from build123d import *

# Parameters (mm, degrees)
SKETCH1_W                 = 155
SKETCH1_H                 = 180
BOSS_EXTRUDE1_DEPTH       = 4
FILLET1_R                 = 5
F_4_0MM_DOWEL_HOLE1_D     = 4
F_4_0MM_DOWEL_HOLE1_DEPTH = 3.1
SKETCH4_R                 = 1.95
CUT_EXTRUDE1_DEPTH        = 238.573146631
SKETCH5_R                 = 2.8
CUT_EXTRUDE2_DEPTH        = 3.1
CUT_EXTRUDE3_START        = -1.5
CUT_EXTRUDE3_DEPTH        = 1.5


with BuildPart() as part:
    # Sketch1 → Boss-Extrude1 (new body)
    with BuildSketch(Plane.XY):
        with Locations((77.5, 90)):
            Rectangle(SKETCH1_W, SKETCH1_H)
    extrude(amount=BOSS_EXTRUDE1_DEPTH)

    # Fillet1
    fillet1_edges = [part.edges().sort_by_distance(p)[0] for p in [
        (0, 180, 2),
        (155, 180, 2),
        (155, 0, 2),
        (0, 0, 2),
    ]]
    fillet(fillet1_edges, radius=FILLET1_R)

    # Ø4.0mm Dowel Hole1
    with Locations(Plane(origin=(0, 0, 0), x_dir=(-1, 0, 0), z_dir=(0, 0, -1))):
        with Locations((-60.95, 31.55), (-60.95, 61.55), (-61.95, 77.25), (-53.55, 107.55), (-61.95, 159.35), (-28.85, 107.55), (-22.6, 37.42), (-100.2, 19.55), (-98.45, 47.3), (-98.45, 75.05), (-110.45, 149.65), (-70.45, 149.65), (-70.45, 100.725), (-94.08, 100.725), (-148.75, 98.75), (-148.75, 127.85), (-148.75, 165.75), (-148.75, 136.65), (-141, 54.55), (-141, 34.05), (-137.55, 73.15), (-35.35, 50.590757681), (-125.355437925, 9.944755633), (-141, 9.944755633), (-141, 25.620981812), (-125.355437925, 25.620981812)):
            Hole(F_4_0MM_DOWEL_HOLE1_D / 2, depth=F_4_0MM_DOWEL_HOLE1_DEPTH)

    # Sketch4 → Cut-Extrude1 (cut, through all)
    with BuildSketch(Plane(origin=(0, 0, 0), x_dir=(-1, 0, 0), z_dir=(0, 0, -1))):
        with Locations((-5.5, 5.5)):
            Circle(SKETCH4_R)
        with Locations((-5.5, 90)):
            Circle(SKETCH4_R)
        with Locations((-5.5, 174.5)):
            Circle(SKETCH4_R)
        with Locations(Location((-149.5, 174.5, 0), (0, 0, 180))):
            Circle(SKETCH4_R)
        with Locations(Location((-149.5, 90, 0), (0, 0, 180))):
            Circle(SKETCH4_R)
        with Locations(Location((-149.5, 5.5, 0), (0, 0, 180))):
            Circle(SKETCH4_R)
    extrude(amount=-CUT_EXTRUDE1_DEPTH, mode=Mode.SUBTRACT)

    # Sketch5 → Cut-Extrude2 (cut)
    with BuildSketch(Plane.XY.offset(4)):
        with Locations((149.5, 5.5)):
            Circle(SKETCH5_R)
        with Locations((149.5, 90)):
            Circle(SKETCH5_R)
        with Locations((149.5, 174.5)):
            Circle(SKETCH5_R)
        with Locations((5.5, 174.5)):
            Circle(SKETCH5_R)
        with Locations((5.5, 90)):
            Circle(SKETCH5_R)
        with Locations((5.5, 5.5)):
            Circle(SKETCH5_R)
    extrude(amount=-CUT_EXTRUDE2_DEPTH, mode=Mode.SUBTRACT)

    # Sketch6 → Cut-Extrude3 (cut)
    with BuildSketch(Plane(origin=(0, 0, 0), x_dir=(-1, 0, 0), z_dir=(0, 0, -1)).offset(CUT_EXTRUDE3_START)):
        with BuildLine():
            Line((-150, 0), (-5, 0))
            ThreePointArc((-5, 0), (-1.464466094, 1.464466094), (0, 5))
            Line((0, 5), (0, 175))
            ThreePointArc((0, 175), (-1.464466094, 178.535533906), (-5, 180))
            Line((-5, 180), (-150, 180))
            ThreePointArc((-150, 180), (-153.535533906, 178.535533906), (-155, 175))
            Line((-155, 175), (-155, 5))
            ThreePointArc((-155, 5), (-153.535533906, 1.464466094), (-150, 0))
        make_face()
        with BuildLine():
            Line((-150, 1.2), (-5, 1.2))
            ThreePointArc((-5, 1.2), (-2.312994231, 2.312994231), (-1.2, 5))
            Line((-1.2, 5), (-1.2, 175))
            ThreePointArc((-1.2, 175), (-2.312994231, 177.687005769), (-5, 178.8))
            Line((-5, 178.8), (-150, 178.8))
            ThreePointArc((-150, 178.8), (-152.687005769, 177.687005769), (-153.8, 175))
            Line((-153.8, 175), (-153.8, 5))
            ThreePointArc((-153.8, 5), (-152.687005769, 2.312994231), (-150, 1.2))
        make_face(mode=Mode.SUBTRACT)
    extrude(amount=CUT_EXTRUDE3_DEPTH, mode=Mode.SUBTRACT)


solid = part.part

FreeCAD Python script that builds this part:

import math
import FreeCAD as App
import Part
import Sketcher
from FreeCAD import Vector
Q = App.Units.Quantity


def edges_at(feature, points):
    """Names of the edges that pass closest to the given points."""
    edges = feature.Shape.Edges
    near = lambda p: min(range(len(edges)), key=lambda i: edges[i].distToShape(Part.Vertex(*p))[0])
    return sorted({f"Edge{near(p) + 1}" for p in points})

doc = App.newDocument("Part")
body = doc.addObject("PartDesign::Body", "Body")

# Sketch on XY plane
sketch1 = body.newObject("Sketcher::SketchObject", "Sketch")
sketch1.AttachmentSupport = (doc.getObject("XY_Plane"), [""])
sketch1.MapMode = "FlatFace"
sketch1.addGeometry([
    Part.LineSegment(Vector(0, 180, 0), Vector(0, 0, 0)),
    Part.LineSegment(Vector(0, 0, 0), Vector(155, 0, 0)),
    Part.LineSegment(Vector(155, 0, 0), Vector(155, 180, 0)),
    Part.LineSegment(Vector(155, 180, 0), Vector(0, 180, 0)),
], False)
sketch1.addConstraint([
    Sketcher.Constraint("Coincident", 0, 2, 1, 1),
    Sketcher.Constraint("Coincident", 1, 2, 2, 1),
    Sketcher.Constraint("Coincident", 2, 2, 3, 1),
    Sketcher.Constraint("Coincident", 3, 2, 0, 1),
    Sketcher.Constraint("Vertical", 0),
    Sketcher.Constraint("Horizontal", 1),
    Sketcher.Constraint("Vertical", 2),
    Sketcher.Constraint("Horizontal", 3),
    Sketcher.Constraint("Coincident", 0, 2, -1, 1),
    Sketcher.Constraint("DistanceX", 1, 1, 1, 2, Q("155 mm")),
    Sketcher.Constraint("DistanceY", 0, 2, 0, 1, Q("180 mm")),
])
pad1 = body.newObject("PartDesign::Pad", "Pad")
pad1.Profile = sketch1
pad1.Length = 4
doc.recompute()

fillet = body.newObject("PartDesign::Fillet", "Fillet")
fillet.Base = (pad1, edges_at(pad1, [
    (0, 180, 2),
    (155, 180, 2),
    (155, 0, 2),
    (0, 0, 2),
]))
fillet.Radius = 5

# Sketch on XY plane
sketch2 = body.newObject("Sketcher::SketchObject", "Sketch001")
sketch2.AttachmentSupport = (doc.getObject("XY_Plane"), [""])
sketch2.MapMode = "FlatFace"
sketch2.addGeometry([
    Part.Circle(Vector(61, 31.6, 0), Vector(0, 0, 1), 2),  # 0
    Part.Circle(Vector(61, 61.5, 0), Vector(0, 0, 1), 2),  # 1
    Part.Circle(Vector(62, 77.2, 0), Vector(0, 0, 1), 2),  # 2
    Part.Circle(Vector(53.5, 107.5, 0), Vector(0, 0, 1), 2),  # 3
    Part.Circle(Vector(62, 159.3, 0), Vector(0, 0, 1), 2),  # 4
    Part.Circle(Vector(28.9, 107.5, 0), Vector(0, 0, 1), 2),  # 5
    Part.Circle(Vector(22.6, 37.4, 0), Vector(0, 0, 1), 2),  # 6
    Part.Circle(Vector(100.2, 19.6, 0), Vector(0, 0, 1), 2),  # 7
    Part.Circle(Vector(98.5, 47.3, 0), Vector(0, 0, 1), 2),  # 8
    Part.Circle(Vector(98.5, 75, 0), Vector(0, 0, 1), 2),  # 9
    Part.Circle(Vector(110.5, 149.7, 0), Vector(0, 0, 1), 2),  # 10
    Part.Circle(Vector(70.5, 149.7, 0), Vector(0, 0, 1), 2),  # 11
    Part.Circle(Vector(70.5, 100.7, 0), Vector(0, 0, 1), 2),  # 12
    Part.Circle(Vector(94.1, 100.7, 0), Vector(0, 0, 1), 2),  # 13
    Part.Circle(Vector(148.8, 98.8, 0), Vector(0, 0, 1), 2),  # 14
    Part.Circle(Vector(148.8, 127.8, 0), Vector(0, 0, 1), 2),  # 15
    Part.Circle(Vector(148.8, 165.8, 0), Vector(0, 0, 1), 2),  # 16
    Part.Circle(Vector(148.8, 136.7, 0), Vector(0, 0, 1), 2),  # 17
    Part.Circle(Vector(141, 54.5, 0), Vector(0, 0, 1), 2),  # 18
    Part.Circle(Vector(141, 34, 0), Vector(0, 0, 1), 2),  # 19
    Part.Circle(Vector(137.6, 73.2, 0), Vector(0, 0, 1), 2),  # 20
    Part.Circle(Vector(35.4, 50.6, 0), Vector(0, 0, 1), 2),  # 21
    Part.Circle(Vector(125.4, 9.9, 0), Vector(0, 0, 1), 2),  # 22
    Part.Circle(Vector(141, 9.9, 0), Vector(0, 0, 1), 2),  # 23
    Part.Circle(Vector(141, 25.6, 0), Vector(0, 0, 1), 2),  # 24
    Part.Circle(Vector(125.4, 25.6, 0), Vector(0, 0, 1), 2),  # 25
], False)
sketch2.addConstraint([
    Sketcher.Constraint("Equal", 0, 1),
    Sketcher.Constraint("Equal", 1, 2),
    Sketcher.Constraint("Equal", 2, 3),
    Sketcher.Constraint("Equal", 3, 4),
    Sketcher.Constraint("Equal", 4, 5),
    Sketcher.Constraint("Equal", 5, 6),
    Sketcher.Constraint("Equal", 6, 7),
    Sketcher.Constraint("Equal", 7, 8),
    Sketcher.Constraint("Equal", 8, 9),
    Sketcher.Constraint("Equal", 9, 10),
    Sketcher.Constraint("Equal", 10, 11),
    Sketcher.Constraint("Equal", 11, 12),
    Sketcher.Constraint("Equal", 12, 13),
    Sketcher.Constraint("Equal", 13, 14),
    Sketcher.Constraint("Equal", 14, 15),
    Sketcher.Constraint("Equal", 15, 16),
    Sketcher.Constraint("Equal", 16, 17),
    Sketcher.Constraint("Equal", 17, 18),
    Sketcher.Constraint("Equal", 18, 19),
    Sketcher.Constraint("Equal", 19, 20),
    Sketcher.Constraint("Equal", 20, 21),
    Sketcher.Constraint("Equal", 21, 22),
    Sketcher.Constraint("Equal", 22, 23),
    Sketcher.Constraint("Equal", 23, 24),
    Sketcher.Constraint("Equal", 24, 25),
    Sketcher.Constraint("Horizontal", 3, 3, 5, 3),
    Sketcher.Constraint("Horizontal", 10, 3, 11, 3),
    Sketcher.Constraint("Horizontal", 12, 3, 13, 3),
    Sketcher.Constraint("Horizontal", 22, 3, 23, 3),
    Sketcher.Constraint("Horizontal", 24, 3, 25, 3),
    Sketcher.Constraint("Vertical", 0, 3, 1, 3),
    Sketcher.Constraint("Vertical", 2, 3, 4, 3),
    Sketcher.Constraint("Vertical", 8, 3, 9, 3),
    Sketcher.Constraint("Vertical", 11, 3, 12, 3),
    Sketcher.Constraint("Vertical", 14, 3, 15, 3),
    Sketcher.Constraint("Vertical", 15, 3, 16, 3),
    Sketcher.Constraint("Vertical", 16, 3, 17, 3),
    Sketcher.Constraint("Vertical", 18, 3, 19, 3),
    Sketcher.Constraint("Vertical", 19, 3, 23, 3),
    Sketcher.Constraint("Vertical", 23, 3, 24, 3),
    Sketcher.Constraint("Vertical", 22, 3, 25, 3),
    Sketcher.Constraint("Diameter", 0, Q("4 mm")),
    Sketcher.Constraint("DistanceX", -1, 1, 18, 3, Q("141 mm")),
    Sketcher.Constraint("DistanceY", 0, 3, 1, 3, Q("30 mm")),
    Sketcher.Constraint("DistanceX", 1, 3, 2, 3, Q("1 mm")),
    Sketcher.Constraint("DistanceY", 1, 3, 3, 3, Q("46 mm")),
    Sketcher.Constraint("DistanceY", 7, 3, 0, 3, Q("12 mm")),
    Sketcher.Constraint("DistanceX", 9, 3, 10, 3, Q("12 mm")),
    Sketcher.Constraint("DistanceX", 11, 3, 10, 3, Q("40 mm")),
    Sketcher.Constraint("DistanceY", 14, 3, 16, 3, Q("67 mm")),
    Sketcher.Constraint("DistanceY", 17, 3, 10, 3, Q("13 mm")),
    Sketcher.Constraint("DistanceY", 7, 3, 18, 3, Q("35 mm")),
    Sketcher.Constraint("DistanceY", 19, 3, 9, 3, Q("41 mm")),
    Sketcher.Constraint("DistanceX", -1, 1, 6, 3, Q("22.6 mm")),
    Sketcher.Constraint("DistanceX", -1, 1, 7, 3, Q("100.2 mm")),
    Sketcher.Constraint("DistanceY", -1, 1, 8, 3, Q("47.3 mm")),
    Sketcher.Constraint("DistanceY", 1, 3, 2, 3, Q("15.7 mm")),
    Sketcher.Constraint("DistanceX", 3, 3, 2, 3, Q("8.4 mm")),
    Sketcher.Constraint("DistanceY", 3, 3, 4, 3, Q("51.8 mm")),
    Sketcher.Constraint("DistanceX", 5, 3, 3, 3, Q("24.7 mm")),
    Sketcher.Constraint("DistanceX", 1, 3, 8, 3, Q("37.5 mm")),
    Sketcher.Constraint("DistanceY", 9, 3, 2, 3, Q("2.2 mm")),
    Sketcher.Constraint("DistanceY", 10, 3, 4, 3, Q("9.7 mm")),
    Sketcher.Constraint("DistanceX", 9, 3, 14, 3, Q("50.3 mm")),
    Sketcher.Constraint("DistanceY", 9, 3, 14, 3, Q("23.7 mm")),
    Sketcher.Constraint("DistanceY", 14, 3, 15, 3, Q("29.1 mm")),
    Sketcher.Constraint("DistanceY", 18, 3, 20, 3, Q("18.6 mm")),
    Sketcher.Constraint("DistanceX", 20, 3, 14, 3, Q("11.2 mm")),
    Sketcher.Constraint("DistanceX", 21, 3, 1, 3, Q("25.6 mm")),
    Sketcher.Constraint("DistanceX", -1, 1, 0, 3, Q("60.95 mm")),
    Sketcher.Constraint("DistanceY", -1, 1, 0, 3, Q("31.55 mm")),
    Sketcher.Constraint("DistanceY", -1, 1, 6, 3, Q("37.42 mm")),
    Sketcher.Constraint("DistanceX", -1, 1, 13, 3, Q("94.08 mm")),
    Sketcher.Constraint("DistanceY", -1, 1, 12, 3, Q("100.725 mm")),
    Sketcher.Constraint("DistanceY", -1, 1, 24, 3, Q("25.620982 mm")),
    Sketcher.Constraint("DistanceY", -1, 1, 21, 3, Q("50.590758 mm")),
    Sketcher.Constraint("DistanceX", -1, 1, 22, 3, Q("125.355438 mm")),
    Sketcher.Constraint("DistanceY", -1, 1, 22, 3, Q("9.944756 mm")),
])
doc.recompute()
hole = body.newObject("PartDesign::Hole", "Hole")
hole.Profile = sketch2
hole.ThreadType = "None"
hole.Diameter = 4
hole.DepthType = "Dimension"
hole.Depth = 3.1
hole.DrillPoint = "Flat"
hole.Reversed = True

# Sketch on XY plane
sketch3 = body.newObject("Sketcher::SketchObject", "Sketch002")
sketch3.AttachmentSupport = (doc.getObject("XY_Plane"), [""])
sketch3.MapMode = "FlatFace"
sketch3.addGeometry([
    Part.Circle(Vector(5.5, 5.5, 0), Vector(0, 0, 1), 1.9),  # 0
    Part.Circle(Vector(5.5, 90, 0), Vector(0, 0, 1), 1.9),  # 1
    Part.Circle(Vector(5.5, 174.5, 0), Vector(0, 0, 1), 1.9),  # 2
    Part.Circle(Vector(149.5, 174.5, 0), Vector(0, 0, 1), 1.9),  # 3
    Part.Circle(Vector(149.5, 90, 0), Vector(0, 0, 1), 1.9),  # 4
    Part.Circle(Vector(149.5, 5.5, 0), Vector(0, 0, 1), 1.9),  # 5
], False)
sketch3.addConstraint([
    Sketcher.Constraint("Equal", 0, 1),
    Sketcher.Constraint("Equal", 1, 2),
    Sketcher.Constraint("Equal", 2, 3),
    Sketcher.Constraint("Equal", 3, 4),
    Sketcher.Constraint("Equal", 4, 5),
    Sketcher.Constraint("Horizontal", 2, 3, 3, 3),
    Sketcher.Constraint("Horizontal", 1, 3, 4, 3),
    Sketcher.Constraint("Horizontal", 0, 3, 5, 3),
    Sketcher.Constraint("Vertical", 0, 3, 1, 3),
    Sketcher.Constraint("Vertical", 1, 3, 2, 3),
    Sketcher.Constraint("Vertical", 3, 3, 4, 3),
    Sketcher.Constraint("Vertical", 4, 3, 5, 3),
    Sketcher.Constraint("Diameter", 0, Q("3.9 mm")),
    Sketcher.Constraint("DistanceY", -1, 1, 1, 3, Q("90 mm")),
    Sketcher.Constraint("DistanceY", 0, 3, 2, 3, Q("169 mm")),
    Sketcher.Constraint("DistanceX", 2, 3, 3, 3, Q("144 mm")),
    Sketcher.Constraint("DistanceX", -1, 1, 0, 3, Q("5.5 mm")),
    Sketcher.Constraint("DistanceY", -1, 1, 0, 3, Q("5.5 mm")),
])
pocket1 = body.newObject("PartDesign::Pocket", "Pocket")
pocket1.Profile = sketch3
pocket1.Type = "ThroughAll"
pocket1.Reversed = True

# Sketch on XY plane
sketch4 = body.newObject("Sketcher::SketchObject", "Sketch003")
sketch4.AttachmentSupport = (doc.getObject("XY_Plane"), [""])
sketch4.MapMode = "FlatFace"
sketch4.AttachmentOffset = App.Placement(Vector(0, 0, 4), App.Rotation())
sketch4.addGeometry([
    Part.Circle(Vector(149.5, 5.5, 0), Vector(0, 0, 1), 2.8),  # 0
    Part.Circle(Vector(149.5, 90, 0), Vector(0, 0, 1), 2.8),  # 1
    Part.Circle(Vector(149.5, 174.5, 0), Vector(0, 0, 1), 2.8),  # 2
    Part.Circle(Vector(5.5, 174.5, 0), Vector(0, 0, 1), 2.8),  # 3
    Part.Circle(Vector(5.5, 90, 0), Vector(0, 0, 1), 2.8),  # 4
    Part.Circle(Vector(5.5, 5.5, 0), Vector(0, 0, 1), 2.8),  # 5
], False)
sketch4.addConstraint([
    Sketcher.Constraint("Equal", 0, 1),
    Sketcher.Constraint("Equal", 1, 2),
    Sketcher.Constraint("Equal", 2, 3),
    Sketcher.Constraint("Equal", 3, 4),
    Sketcher.Constraint("Equal", 4, 5),
    Sketcher.Constraint("Horizontal", 2, 3, 3, 3),
    Sketcher.Constraint("Horizontal", 1, 3, 4, 3),
    Sketcher.Constraint("Horizontal", 0, 3, 5, 3),
    Sketcher.Constraint("Vertical", 0, 3, 1, 3),
    Sketcher.Constraint("Vertical", 1, 3, 2, 3),
    Sketcher.Constraint("Vertical", 3, 3, 4, 3),
    Sketcher.Constraint("Vertical", 4, 3, 5, 3),
    Sketcher.Constraint("Diameter", 0, Q("5.6 mm")),
    Sketcher.Constraint("DistanceY", -1, 1, 1, 3, Q("90 mm")),
    Sketcher.Constraint("DistanceY", 0, 3, 2, 3, Q("169 mm")),
    Sketcher.Constraint("DistanceX", 3, 3, 2, 3, Q("144 mm")),
    Sketcher.Constraint("DistanceX", -1, 1, 0, 3, Q("149.5 mm")),
    Sketcher.Constraint("DistanceY", -1, 1, 0, 3, Q("5.5 mm")),
])
pocket2 = body.newObject("PartDesign::Pocket", "Pocket001")
pocket2.Profile = sketch4
pocket2.Length = 3.1

# Sketch on XY plane
sketch5 = body.newObject("Sketcher::SketchObject", "Sketch004")
sketch5.AttachmentSupport = (doc.getObject("XY_Plane"), [""])
sketch5.MapMode = "FlatFace"
sketch5.AttachmentOffset = App.Placement(Vector(0, 0, 1.5), App.Rotation())
sketch5.addGeometry([
    Part.LineSegment(Vector(150, 0, 0), Vector(5, 0, 0)),  # 0
    Part.ArcOfCircle(Part.Circle(Vector(5, 5, 0), Vector(0, 0, 1), 5), math.radians(180), math.radians(270)),  # 1
    Part.LineSegment(Vector(0, 5, 0), Vector(0, 175, 0)),  # 2
    Part.ArcOfCircle(Part.Circle(Vector(5, 175, 0), Vector(0, 0, 1), 5), math.radians(90), math.radians(180)),  # 3
    Part.LineSegment(Vector(5, 180, 0), Vector(150, 180, 0)),  # 4
    Part.ArcOfCircle(Part.Circle(Vector(150, 175, 0), Vector(0, 0, 1), 5), math.radians(0), math.radians(90)),  # 5
    Part.LineSegment(Vector(155, 175, 0), Vector(155, 5, 0)),  # 6
    Part.ArcOfCircle(Part.Circle(Vector(150, 5, 0), Vector(0, 0, 1), 5), math.radians(-90), math.radians(0)),  # 7
    Part.LineSegment(Vector(5, 1.2, 0), Vector(150, 1.2, 0)),  # 8
    Part.ArcOfCircle(Part.Circle(Vector(150, 5, 0), Vector(0, 0, 1), 3.8), math.radians(-90), math.radians(0)),  # 9
    Part.LineSegment(Vector(153.8, 5, 0), Vector(153.8, 175, 0)),  # 10
    Part.ArcOfCircle(Part.Circle(Vector(150, 175, 0), Vector(0, 0, 1), 3.8), math.radians(0), math.radians(90)),  # 11
    Part.LineSegment(Vector(150, 178.8, 0), Vector(5, 178.8, 0)),  # 12
    Part.ArcOfCircle(Part.Circle(Vector(5, 175, 0), Vector(0, 0, 1), 3.8), math.radians(90), math.radians(180)),  # 13
    Part.LineSegment(Vector(1.2, 175, 0), Vector(1.2, 5, 0)),  # 14
    Part.ArcOfCircle(Part.Circle(Vector(5, 5, 0), Vector(0, 0, 1), 3.8), math.radians(180), math.radians(270)),  # 15
], False)
sketch5.addConstraint([
    Sketcher.Constraint("Tangent", 0, 2, 1, 2),
    Sketcher.Constraint("Tangent", 1, 1, 2, 1),
    Sketcher.Constraint("Tangent", 2, 2, 3, 2),
    Sketcher.Constraint("Tangent", 3, 1, 4, 1),
    Sketcher.Constraint("Tangent", 4, 2, 5, 2),
    Sketcher.Constraint("Tangent", 5, 1, 6, 1),
    Sketcher.Constraint("Tangent", 6, 2, 7, 2),
    Sketcher.Constraint("Tangent", 7, 1, 0, 1),
    Sketcher.Constraint("Tangent", 8, 2, 9, 1),
    Sketcher.Constraint("Tangent", 9, 2, 10, 1),
    Sketcher.Constraint("Tangent", 10, 2, 11, 1),
    Sketcher.Constraint("Tangent", 11, 2, 12, 1),
    Sketcher.Constraint("Tangent", 12, 2, 13, 1),
    Sketcher.Constraint("Tangent", 13, 2, 14, 1),
    Sketcher.Constraint("Tangent", 14, 2, 15, 1),
    Sketcher.Constraint("Tangent", 15, 2, 8, 1),
    Sketcher.Constraint("Horizontal", 0),
    Sketcher.Constraint("Vertical", 2),
    Sketcher.Constraint("Horizontal", 4),
    Sketcher.Constraint("Vertical", 6),
    Sketcher.Constraint("Horizontal", 8),
    Sketcher.Constraint("Vertical", 10),
    Sketcher.Constraint("Horizontal", 12),
    Sketcher.Constraint("Vertical", 14),
    Sketcher.Constraint("Coincident", 9, 3, 7, 3),
    Sketcher.Constraint("Coincident", 11, 3, 5, 3),
    Sketcher.Constraint("Coincident", 13, 3, 3, 3),
    Sketcher.Constraint("Equal", 1, 3),
    Sketcher.Constraint("Equal", 3, 5),
    Sketcher.Constraint("Equal", 5, 7),
    Sketcher.Constraint("Equal", 13, 15),
    Sketcher.Constraint("PointOnObject", 0, 2, -1),
    Sketcher.Constraint("PointOnObject", 1, 1, -2),
    Sketcher.Constraint("Radius", 1, Q("5 mm")),
    Sketcher.Constraint("Radius", 9, Q("3.8 mm")),
    Sketcher.Constraint("DistanceX", 0, 2, 0, 1, Q("145 mm")),
    Sketcher.Constraint("DistanceY", 2, 1, 2, 2, Q("170 mm")),
])
pocket3 = body.newObject("PartDesign::Pocket", "Pocket002")
pocket3.Profile = sketch5
pocket3.Length = 1.5

doc.recompute()
